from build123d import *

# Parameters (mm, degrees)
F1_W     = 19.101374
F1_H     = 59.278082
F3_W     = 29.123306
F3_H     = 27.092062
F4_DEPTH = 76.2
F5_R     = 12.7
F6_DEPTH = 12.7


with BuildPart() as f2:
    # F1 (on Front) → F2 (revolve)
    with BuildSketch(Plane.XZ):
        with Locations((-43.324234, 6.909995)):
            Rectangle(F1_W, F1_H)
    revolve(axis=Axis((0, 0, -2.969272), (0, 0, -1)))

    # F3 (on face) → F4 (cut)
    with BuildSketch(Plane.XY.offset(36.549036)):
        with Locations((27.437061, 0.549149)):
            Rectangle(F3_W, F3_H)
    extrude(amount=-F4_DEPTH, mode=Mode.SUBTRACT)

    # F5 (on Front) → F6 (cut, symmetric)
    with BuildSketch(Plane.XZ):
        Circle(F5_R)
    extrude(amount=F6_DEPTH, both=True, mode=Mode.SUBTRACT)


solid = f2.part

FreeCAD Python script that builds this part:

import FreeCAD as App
import Part
import Sketcher
Q = App.Units.Quantity

doc = App.newDocument("Part")
body = doc.addObject("PartDesign::Body", "Body")

# Sketch on XZ plane
sketch1 = body.newObject("Sketcher::SketchObject", "Sketch")
sketch1.AttachmentSupport = (doc.getObject("XZ_Plane"), [""])
sketch1.MapMode = "FlatFace"
sketch1.addGeometry([
    Part.LineSegment(App.Vector(-53, 37, 0), App.Vector(-53, -23, 0)),
    Part.LineSegment(App.Vector(-53, -23, 0), App.Vector(-34, -23, 0)),
    Part.LineSegment(App.Vector(-34, -23, 0), App.Vector(-34, 37, 0)),
    Part.LineSegment(App.Vector(-34, 37, 0), App.Vector(-53, 37, 0)),
], False)
sketch1.addConstraint([
    Sketcher.Constraint("Coincident", 0, 2, 1, 1),
    Sketcher.Constraint("Coincident", 1, 2, 2, 1),
    Sketcher.Constraint("Coincident", 2, 2, 3, 1),
    Sketcher.Constraint("Coincident", 3, 2, 0, 1),
    Sketcher.Constraint("Vertical", 0),
    Sketcher.Constraint("Horizontal", 1),
    Sketcher.Constraint("Vertical", 2),
    Sketcher.Constraint("Horizontal", 3),
    Sketcher.Constraint("DistanceY", 0, 2, 0, 1, Q("59.278082 mm")),
    Sketcher.Constraint("DistanceX", 1, 1, 1, 2, Q("19.101374 mm")),
    Sketcher.Constraint("DistanceX", 0, 2, -1, 1, Q("52.874921 mm")),
    Sketcher.Constraint("DistanceY", 0, 2, -1, 1, Q("22.729046 mm")),
])
revolution = body.newObject("PartDesign::Revolution", "Revolution")
revolution.Profile = sketch1
revolution.ReferenceAxis = (sketch1, ["V_Axis"])
revolution.Angle = 360

# Sketch on XY plane
sketch2 = body.newObject("Sketcher::SketchObject", "Sketch001")
sketch2.AttachmentSupport = (doc.getObject("XY_Plane"), [""])
sketch2.MapMode = "FlatFace"
sketch2.AttachmentOffset = App.Placement(App.Vector(0, 0, 36.549036), App.Rotation())
sketch2.addGeometry([
    Part.LineSegment(App.Vector(13, 14, 0), App.Vector(13, -13, 0)),
    Part.LineSegment(App.Vector(13, -13, 0), App.Vector(42, -13, 0)),
    Part.LineSegment(App.Vector(42, -13, 0), App.Vector(42, 14, 0)),
    Part.LineSegment(App.Vector(42, 14, 0), App.Vector(13, 14, 0)),
], False)
sketch2.addConstraint([
    Sketcher.Constraint("Coincident", 0, 2, 1, 1),
    Sketcher.Constraint("Coincident", 1, 2, 2, 1),
    Sketcher.Constraint("Coincident", 2, 2, 3, 1),
    Sketcher.Constraint("Coincident", 3, 2, 0, 1),
    Sketcher.Constraint("Vertical", 0),
    Sketcher.Constraint("Horizontal", 1),
    Sketcher.Constraint("Vertical", 2),
    Sketcher.Constraint("Horizontal", 3),
    Sketcher.Constraint("DistanceY", 0, 2, 0, 1, Q("27.092062 mm")),
    Sketcher.Constraint("DistanceX", 1, 1, 1, 2, Q("29.123306 mm")),
    Sketcher.Constraint("DistanceY", 0, 2, -1, 1, Q("12.996882 mm")),
    Sketcher.Constraint("DistanceX", -1, 1, 0, 2, Q("12.875408 mm")),
])
pocket1 = body.newObject("PartDesign::Pocket", "Pocket")
pocket1.Profile = sketch2
pocket1.Length = Q("3 in")

# Sketch on XZ plane
sketch3 = body.newObject("Sketcher::SketchObject", "Sketch002")
sketch3.AttachmentSupport = (doc.getObject("XZ_Plane"), [""])
sketch3.MapMode = "FlatFace"
sketch3.addGeometry(Part.Circle(App.Vector(0, 0, 0), App.Vector(0, 0, 1), 13), False)
sketch3.addConstraint([
    Sketcher.Constraint("Coincident", 0, 3, -1, 1),
    Sketcher.Constraint("Diameter", 0, Q("1 in")),
])
pocket2 = body.newObject("PartDesign::Pocket", "Pocket001")
pocket2.Profile = sketch3
pocket2.Length = Q("1 in")
pocket2.Midplane = True

doc.recompute()
